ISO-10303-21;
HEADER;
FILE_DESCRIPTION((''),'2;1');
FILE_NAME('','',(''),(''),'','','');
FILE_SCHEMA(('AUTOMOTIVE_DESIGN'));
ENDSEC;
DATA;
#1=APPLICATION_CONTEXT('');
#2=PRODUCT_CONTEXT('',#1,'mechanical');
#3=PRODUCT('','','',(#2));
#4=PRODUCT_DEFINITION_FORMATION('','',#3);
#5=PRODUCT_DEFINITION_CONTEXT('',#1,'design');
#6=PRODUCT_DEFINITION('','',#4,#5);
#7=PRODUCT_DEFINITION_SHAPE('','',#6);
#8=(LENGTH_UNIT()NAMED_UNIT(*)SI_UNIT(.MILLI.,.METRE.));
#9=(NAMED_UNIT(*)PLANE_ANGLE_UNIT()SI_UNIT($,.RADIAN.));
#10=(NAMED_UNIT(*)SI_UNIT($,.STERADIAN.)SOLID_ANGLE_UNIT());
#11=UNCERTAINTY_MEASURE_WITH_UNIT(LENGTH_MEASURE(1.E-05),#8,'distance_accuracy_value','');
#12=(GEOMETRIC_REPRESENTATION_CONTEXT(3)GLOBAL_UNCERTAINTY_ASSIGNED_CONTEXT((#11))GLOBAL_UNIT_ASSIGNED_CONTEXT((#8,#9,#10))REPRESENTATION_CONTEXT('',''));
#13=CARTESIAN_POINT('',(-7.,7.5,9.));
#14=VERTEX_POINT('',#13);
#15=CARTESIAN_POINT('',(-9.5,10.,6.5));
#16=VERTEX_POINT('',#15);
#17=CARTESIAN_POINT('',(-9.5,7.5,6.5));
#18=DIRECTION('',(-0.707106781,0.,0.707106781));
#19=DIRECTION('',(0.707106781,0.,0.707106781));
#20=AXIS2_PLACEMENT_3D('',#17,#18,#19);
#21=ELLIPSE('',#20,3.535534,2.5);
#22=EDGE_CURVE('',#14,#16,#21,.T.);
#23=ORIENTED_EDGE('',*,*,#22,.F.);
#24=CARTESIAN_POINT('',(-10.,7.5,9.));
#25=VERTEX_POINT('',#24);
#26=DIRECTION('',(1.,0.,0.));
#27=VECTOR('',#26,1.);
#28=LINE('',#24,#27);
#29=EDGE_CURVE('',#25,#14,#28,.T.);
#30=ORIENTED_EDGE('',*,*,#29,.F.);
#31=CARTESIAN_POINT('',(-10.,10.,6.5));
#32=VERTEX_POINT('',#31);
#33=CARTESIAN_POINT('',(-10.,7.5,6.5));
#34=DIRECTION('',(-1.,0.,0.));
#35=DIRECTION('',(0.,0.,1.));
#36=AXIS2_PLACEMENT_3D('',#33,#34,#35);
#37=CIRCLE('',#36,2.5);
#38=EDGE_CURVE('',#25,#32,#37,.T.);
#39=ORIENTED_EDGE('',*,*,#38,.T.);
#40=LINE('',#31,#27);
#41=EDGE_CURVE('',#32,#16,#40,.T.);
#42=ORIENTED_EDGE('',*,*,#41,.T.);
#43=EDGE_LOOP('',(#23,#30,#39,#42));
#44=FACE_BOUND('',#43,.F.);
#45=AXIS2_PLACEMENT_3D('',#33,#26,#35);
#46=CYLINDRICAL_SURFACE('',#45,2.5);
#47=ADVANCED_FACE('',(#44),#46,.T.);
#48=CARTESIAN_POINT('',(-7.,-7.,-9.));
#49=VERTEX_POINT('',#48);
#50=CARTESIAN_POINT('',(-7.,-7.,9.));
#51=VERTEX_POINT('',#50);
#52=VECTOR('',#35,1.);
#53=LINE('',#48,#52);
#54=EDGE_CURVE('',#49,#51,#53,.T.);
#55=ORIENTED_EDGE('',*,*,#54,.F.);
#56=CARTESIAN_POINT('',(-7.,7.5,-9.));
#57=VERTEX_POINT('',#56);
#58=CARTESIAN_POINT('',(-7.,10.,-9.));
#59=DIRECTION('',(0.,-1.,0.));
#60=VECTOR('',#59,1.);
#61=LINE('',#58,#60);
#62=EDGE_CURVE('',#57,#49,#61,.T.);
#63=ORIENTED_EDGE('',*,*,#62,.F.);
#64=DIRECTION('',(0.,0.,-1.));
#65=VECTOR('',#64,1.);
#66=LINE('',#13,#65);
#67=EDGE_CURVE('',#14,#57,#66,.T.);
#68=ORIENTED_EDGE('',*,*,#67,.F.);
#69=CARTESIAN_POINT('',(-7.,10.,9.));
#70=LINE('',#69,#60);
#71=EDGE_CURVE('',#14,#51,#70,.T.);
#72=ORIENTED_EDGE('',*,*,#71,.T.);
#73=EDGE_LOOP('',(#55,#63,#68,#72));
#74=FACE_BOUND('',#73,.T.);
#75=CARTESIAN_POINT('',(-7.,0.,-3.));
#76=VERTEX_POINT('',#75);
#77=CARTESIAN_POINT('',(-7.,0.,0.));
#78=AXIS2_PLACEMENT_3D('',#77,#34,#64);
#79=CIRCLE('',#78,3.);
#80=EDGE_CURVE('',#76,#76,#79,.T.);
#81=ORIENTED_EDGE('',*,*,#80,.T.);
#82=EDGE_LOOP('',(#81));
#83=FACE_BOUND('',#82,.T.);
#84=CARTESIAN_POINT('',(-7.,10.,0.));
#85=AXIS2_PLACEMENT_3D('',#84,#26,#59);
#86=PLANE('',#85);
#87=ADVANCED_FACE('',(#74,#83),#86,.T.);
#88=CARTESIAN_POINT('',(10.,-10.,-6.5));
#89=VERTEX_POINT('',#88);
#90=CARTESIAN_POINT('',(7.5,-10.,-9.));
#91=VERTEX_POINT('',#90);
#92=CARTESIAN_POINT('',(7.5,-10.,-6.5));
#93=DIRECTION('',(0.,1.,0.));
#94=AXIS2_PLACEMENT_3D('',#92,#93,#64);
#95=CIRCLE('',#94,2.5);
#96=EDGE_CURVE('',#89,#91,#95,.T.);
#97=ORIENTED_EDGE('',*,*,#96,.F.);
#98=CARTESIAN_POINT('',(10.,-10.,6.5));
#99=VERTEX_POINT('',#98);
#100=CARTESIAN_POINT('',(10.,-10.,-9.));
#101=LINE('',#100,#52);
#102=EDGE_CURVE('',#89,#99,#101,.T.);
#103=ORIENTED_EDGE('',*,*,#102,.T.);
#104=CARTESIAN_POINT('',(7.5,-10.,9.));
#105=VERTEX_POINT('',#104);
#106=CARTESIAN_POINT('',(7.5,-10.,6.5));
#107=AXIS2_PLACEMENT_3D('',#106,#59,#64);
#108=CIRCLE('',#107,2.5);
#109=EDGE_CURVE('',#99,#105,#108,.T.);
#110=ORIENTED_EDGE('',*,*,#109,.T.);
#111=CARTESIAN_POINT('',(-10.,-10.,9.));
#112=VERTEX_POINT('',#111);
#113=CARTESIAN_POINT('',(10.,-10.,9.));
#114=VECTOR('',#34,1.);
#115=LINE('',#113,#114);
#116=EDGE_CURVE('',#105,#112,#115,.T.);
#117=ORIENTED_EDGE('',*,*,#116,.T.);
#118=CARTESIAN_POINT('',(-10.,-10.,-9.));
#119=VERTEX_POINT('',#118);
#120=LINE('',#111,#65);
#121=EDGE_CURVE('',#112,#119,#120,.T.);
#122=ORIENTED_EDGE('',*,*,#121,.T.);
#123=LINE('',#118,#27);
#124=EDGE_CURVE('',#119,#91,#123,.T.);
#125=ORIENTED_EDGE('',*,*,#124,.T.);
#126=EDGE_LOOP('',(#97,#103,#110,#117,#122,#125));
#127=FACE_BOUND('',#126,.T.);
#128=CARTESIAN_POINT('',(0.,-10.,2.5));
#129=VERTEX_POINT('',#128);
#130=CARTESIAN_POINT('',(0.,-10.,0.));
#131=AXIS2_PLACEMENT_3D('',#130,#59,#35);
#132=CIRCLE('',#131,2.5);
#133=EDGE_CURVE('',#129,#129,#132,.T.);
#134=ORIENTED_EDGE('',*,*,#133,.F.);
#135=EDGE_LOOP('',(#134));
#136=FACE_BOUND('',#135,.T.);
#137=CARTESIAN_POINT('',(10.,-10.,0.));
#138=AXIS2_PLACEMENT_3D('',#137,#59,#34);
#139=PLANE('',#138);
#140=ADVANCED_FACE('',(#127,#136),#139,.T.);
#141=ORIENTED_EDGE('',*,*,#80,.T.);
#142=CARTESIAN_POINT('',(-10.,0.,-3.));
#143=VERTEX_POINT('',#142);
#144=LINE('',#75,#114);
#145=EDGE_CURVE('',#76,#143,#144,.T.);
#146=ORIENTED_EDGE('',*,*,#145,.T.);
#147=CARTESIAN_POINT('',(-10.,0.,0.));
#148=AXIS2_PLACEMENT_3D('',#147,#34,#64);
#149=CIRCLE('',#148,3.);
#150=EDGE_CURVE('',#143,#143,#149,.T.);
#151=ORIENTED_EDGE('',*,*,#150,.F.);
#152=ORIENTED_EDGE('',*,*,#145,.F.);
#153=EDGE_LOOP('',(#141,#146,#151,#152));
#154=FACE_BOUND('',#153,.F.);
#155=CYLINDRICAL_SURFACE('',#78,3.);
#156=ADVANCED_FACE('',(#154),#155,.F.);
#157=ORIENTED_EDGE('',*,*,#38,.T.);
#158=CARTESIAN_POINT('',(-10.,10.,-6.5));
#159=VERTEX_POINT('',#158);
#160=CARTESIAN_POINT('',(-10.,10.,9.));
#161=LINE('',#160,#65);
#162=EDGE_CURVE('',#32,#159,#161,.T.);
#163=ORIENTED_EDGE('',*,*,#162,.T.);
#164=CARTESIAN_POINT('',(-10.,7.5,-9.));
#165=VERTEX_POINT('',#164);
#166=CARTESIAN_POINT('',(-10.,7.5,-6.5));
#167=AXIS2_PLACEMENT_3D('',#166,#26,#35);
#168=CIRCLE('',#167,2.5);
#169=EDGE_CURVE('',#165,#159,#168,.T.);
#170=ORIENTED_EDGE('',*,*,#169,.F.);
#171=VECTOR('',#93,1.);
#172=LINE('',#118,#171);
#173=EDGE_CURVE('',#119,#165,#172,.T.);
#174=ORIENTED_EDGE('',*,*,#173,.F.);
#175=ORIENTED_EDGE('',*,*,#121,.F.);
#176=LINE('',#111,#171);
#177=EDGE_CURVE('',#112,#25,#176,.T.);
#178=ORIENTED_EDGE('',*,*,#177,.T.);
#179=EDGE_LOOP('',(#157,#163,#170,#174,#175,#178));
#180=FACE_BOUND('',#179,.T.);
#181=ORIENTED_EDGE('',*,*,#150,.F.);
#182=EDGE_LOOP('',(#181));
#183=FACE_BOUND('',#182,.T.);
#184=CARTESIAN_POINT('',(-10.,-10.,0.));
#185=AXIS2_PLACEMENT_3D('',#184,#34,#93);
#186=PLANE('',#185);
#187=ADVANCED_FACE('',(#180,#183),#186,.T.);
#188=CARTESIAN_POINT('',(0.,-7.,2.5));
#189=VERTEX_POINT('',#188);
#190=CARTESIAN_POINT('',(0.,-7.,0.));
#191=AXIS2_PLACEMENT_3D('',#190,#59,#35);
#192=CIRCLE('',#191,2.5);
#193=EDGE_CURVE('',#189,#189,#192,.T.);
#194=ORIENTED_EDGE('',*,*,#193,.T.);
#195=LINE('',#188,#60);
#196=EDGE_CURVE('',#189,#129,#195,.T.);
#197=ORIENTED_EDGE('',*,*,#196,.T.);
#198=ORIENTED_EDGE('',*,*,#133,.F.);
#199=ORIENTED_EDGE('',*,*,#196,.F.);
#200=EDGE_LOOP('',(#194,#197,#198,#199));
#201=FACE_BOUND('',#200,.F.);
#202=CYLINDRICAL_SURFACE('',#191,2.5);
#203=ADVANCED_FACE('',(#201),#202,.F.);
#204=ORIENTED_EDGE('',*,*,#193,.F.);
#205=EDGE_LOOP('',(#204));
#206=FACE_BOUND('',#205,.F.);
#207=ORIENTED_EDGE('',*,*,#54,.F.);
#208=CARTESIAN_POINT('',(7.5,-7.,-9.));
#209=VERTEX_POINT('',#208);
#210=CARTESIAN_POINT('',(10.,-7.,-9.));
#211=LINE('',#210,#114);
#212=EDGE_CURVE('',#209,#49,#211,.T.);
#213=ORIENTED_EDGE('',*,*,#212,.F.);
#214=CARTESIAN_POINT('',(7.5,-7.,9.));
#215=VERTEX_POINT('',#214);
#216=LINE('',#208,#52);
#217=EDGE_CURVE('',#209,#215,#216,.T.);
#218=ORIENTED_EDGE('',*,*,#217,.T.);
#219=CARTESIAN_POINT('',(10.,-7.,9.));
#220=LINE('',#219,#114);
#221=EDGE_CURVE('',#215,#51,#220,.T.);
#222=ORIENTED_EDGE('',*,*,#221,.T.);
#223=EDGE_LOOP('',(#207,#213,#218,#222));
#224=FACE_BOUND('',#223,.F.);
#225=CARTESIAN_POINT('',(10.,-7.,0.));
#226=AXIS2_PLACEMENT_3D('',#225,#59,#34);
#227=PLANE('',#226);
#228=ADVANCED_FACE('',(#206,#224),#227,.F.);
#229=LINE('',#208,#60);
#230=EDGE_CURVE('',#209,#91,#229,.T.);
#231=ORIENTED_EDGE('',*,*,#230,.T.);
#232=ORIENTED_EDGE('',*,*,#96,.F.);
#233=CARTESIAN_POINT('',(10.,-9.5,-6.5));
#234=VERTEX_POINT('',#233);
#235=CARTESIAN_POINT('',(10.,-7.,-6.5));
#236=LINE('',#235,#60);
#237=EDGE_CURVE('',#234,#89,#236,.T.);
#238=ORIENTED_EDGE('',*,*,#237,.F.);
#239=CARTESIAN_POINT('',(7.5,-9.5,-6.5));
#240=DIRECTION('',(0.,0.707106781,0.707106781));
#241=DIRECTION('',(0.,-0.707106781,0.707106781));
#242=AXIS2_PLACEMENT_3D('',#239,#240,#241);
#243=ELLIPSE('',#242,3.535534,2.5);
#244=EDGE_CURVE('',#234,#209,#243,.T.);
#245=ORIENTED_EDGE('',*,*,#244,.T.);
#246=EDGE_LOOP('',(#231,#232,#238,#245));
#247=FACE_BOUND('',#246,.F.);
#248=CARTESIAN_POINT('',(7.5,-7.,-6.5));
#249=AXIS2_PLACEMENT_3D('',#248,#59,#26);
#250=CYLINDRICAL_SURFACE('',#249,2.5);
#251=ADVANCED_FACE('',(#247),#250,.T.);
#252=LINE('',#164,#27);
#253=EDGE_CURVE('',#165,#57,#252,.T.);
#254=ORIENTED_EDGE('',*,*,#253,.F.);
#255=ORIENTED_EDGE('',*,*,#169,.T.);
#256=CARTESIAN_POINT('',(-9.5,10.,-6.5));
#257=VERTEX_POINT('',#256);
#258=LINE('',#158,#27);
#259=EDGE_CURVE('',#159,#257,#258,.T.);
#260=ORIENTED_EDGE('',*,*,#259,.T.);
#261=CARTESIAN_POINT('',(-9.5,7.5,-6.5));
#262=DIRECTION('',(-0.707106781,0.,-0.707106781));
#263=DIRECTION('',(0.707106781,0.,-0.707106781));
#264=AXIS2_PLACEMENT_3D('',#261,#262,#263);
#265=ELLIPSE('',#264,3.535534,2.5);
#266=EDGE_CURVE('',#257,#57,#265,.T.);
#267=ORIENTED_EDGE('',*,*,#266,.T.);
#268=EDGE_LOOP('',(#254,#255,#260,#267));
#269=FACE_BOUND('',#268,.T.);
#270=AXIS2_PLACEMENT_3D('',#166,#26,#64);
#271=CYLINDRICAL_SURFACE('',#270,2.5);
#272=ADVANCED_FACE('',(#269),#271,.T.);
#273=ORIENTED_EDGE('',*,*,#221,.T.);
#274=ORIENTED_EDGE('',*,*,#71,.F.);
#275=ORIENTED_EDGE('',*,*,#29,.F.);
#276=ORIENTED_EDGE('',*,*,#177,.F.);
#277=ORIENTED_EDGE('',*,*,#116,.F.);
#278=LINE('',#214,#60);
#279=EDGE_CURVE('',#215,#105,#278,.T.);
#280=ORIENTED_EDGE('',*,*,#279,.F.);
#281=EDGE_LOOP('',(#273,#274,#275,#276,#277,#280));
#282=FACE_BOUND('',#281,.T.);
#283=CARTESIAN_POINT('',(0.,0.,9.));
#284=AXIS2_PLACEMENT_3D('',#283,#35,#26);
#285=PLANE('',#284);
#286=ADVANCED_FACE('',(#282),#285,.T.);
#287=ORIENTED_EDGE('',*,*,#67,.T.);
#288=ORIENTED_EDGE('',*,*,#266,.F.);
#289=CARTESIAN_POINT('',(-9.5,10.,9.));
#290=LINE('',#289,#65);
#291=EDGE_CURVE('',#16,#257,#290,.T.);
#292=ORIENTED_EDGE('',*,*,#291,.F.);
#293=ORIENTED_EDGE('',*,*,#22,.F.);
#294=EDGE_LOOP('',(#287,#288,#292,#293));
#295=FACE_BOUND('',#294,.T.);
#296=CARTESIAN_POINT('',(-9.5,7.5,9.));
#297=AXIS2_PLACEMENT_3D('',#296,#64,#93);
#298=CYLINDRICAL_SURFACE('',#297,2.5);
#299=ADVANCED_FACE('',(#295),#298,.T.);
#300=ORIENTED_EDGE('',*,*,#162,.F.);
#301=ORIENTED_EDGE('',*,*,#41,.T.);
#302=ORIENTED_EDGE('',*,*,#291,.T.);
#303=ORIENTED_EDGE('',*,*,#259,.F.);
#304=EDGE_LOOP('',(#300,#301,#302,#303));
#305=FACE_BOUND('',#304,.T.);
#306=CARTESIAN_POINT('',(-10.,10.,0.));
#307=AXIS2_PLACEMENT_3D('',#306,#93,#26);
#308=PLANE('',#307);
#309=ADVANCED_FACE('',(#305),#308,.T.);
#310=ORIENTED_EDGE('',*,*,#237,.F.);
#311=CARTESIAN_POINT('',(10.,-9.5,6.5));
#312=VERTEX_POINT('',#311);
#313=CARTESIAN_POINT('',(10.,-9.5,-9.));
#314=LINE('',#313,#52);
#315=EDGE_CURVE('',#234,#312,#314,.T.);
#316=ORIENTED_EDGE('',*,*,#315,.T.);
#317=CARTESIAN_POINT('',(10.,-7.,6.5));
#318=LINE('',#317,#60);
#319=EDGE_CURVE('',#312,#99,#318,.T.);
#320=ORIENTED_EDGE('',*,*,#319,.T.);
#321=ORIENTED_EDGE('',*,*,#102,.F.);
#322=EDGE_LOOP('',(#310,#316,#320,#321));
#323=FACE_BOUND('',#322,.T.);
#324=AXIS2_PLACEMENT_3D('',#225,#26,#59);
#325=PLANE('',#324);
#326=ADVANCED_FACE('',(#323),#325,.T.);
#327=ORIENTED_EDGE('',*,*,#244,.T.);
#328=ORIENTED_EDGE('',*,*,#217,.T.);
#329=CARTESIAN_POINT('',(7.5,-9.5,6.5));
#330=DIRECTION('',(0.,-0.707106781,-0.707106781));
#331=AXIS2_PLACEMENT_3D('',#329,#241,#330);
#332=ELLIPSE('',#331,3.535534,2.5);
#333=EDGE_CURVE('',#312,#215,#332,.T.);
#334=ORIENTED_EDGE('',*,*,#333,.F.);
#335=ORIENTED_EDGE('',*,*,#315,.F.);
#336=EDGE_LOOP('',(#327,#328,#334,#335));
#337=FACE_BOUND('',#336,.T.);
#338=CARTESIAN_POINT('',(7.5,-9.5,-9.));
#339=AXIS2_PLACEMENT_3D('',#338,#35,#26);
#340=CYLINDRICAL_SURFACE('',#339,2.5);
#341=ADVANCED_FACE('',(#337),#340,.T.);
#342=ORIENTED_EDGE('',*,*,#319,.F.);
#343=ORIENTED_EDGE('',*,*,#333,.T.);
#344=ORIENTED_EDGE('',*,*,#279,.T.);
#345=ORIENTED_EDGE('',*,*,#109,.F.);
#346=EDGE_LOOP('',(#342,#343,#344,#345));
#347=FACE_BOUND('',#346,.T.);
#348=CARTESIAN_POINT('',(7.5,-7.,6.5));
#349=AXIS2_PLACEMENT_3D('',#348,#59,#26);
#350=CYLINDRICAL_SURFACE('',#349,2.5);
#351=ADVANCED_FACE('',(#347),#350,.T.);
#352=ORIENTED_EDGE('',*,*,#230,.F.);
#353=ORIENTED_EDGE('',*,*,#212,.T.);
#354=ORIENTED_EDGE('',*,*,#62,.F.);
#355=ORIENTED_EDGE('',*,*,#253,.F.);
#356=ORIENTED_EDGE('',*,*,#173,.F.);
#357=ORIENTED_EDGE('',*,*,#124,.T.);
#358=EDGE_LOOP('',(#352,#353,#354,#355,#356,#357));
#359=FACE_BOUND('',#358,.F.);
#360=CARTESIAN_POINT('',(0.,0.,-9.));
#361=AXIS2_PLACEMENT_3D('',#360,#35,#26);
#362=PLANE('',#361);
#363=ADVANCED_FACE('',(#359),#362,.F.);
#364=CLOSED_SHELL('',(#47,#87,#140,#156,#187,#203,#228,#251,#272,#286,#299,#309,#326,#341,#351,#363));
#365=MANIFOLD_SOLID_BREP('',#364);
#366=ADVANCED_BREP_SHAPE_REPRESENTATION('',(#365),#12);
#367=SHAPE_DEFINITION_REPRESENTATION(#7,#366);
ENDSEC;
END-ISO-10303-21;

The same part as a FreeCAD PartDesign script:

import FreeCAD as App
import Part
import Sketcher
from FreeCAD import Vector
Q = App.Units.Quantity


def edges_at(feature, points):
    """Names of the edges that pass closest to the given points."""
    edges = feature.Shape.Edges
    near = lambda p: min(range(len(edges)), key=lambda i: edges[i].distToShape(Part.Vertex(*p))[0])
    return sorted({f"Edge{near(p) + 1}" for p in points})


def add_polygon(sketch, points):
    """Adds a closed chain of lines whose ends are joined by coincident constraints."""
    first, n = sketch.GeometryCount, len(points)
    for a, b in zip(points, points[1:] + points[:1]):
        sketch.addGeometry(Part.LineSegment(App.Vector(*a, 0), App.Vector(*b, 0)), False)
    for i in range(n):
        sketch.addConstraint(Sketcher.Constraint("Coincident", first + i, 2, first + (i + 1) % n, 1))

doc = App.newDocument("Part")
params = doc.addObject("Spreadsheet::Sheet", "Params")
for row, (alias, value) in enumerate([
    ("sketch1_width", "20 mm"),
    ("sketch1_width2", "17 mm"),
    ("pad1_length", "18 mm"),
    ("fillet_radius", "2.5 mm"),
    ("sketch2_diameter", "6 mm"),
    ("hole_diameter", "6 mm"),
    ("sketch3_diameter", "5 mm"),
    ("hole2_diameter", "5 mm"),
], start=1):
    params.set(f"A{row}", alias)
    params.set(f"B{row}", "=" + value)
    params.setAlias(f"B{row}", alias)

body = doc.addObject("PartDesign::Body", "Body")

sketch1 = doc.addObject("Sketcher::SketchObject", "Sketch")
body.addObject(sketch1)
sketch1.AttachmentSupport = (doc.XY_Plane, [""])
sketch1.MapMode = "FlatFace"
add_polygon(sketch1, [(-10, -10), (10, -10), (10, -7), (-7, -7), (-7, 10), (-10, 10)])
sketch1.addConstraint(Sketcher.Constraint("Horizontal", 0))
sketch1.addConstraint(Sketcher.Constraint("Vertical", 1))
sketch1.addConstraint(Sketcher.Constraint("Horizontal", 2))
sketch1.addConstraint(Sketcher.Constraint("Vertical", 3))
sketch1.addConstraint(Sketcher.Constraint("Horizontal", 4))
sketch1.addConstraint(Sketcher.Constraint("Vertical", 5))
sketch1.addConstraint(Sketcher.Constraint("Symmetric", 0, 2, 4, 2, -1, 1))
sketch1.addConstraint(Sketcher.Constraint("Equal", 4, 1))
sketch1.addConstraint(Sketcher.Constraint("Equal", 2, 3))
sketch1.addConstraint(Sketcher.Constraint("DistanceX", 0, 1, 0, 2, Q("20 mm")))
sketch1.addConstraint(Sketcher.Constraint("DistanceX", 2, 2, 2, 1, Q("17 mm")))
sketch1.setExpression("Constraints[15]", "Params.sketch1_width")
sketch1.setExpression("Constraints[16]", "Params.sketch1_width2")
pad1 = doc.addObject("PartDesign::Pad", "Pad")
body.addObject(pad1)
pad1.Profile = sketch1
pad1.setExpression("Length", "Params.pad1_length")
pad1.Midplane = True
doc.recompute()

fillet = doc.addObject("PartDesign::Fillet", "Fillet")
body.addObject(fillet)
fillet.Base = (pad1, edges_at(pad1, [
    (-8.5, 10, 9),
    (-7, 10, 0),
    (-8.5, 10, -9),
    (10, -8.5, 9),
    (10, -7, 0),
    (10, -8.5, -9),
]))
fillet.setExpression("Radius", "Params.fillet_radius")

sketch2 = doc.addObject("Sketcher::SketchObject", "Sketch001")
body.addObject(sketch2)
sketch2.AttachmentSupport = (doc.YZ_Plane, [""])
sketch2.MapMode = "FlatFace"
sketch2.AttachmentOffset = App.Placement(Vector(0, 0, -7), App.Rotation())
sketch2.addGeometry(Part.Circle(Vector(0, 0, 0), Vector(0, 0, 1), 3), False)
sketch2.addConstraint(Sketcher.Constraint("Coincident", 0, 3, -1, 1))
sketch2.addConstraint(Sketcher.Constraint("Diameter", 0, Q("6 mm")))
sketch2.setExpression("Constraints[1]", "Params.sketch2_diameter")
doc.recompute()
hole = doc.addObject("PartDesign::Hole", "Hole")
body.addObject(hole)
hole.Profile = sketch2
hole.ThreadType = "None"
hole.setExpression("Diameter", "Params.hole_diameter")
hole.DepthType = "ThroughAll"

sketch3 = doc.addObject("Sketcher::SketchObject", "Sketch002")
body.addObject(sketch3)
sketch3.AttachmentSupport = (doc.XZ_Plane, [""])
sketch3.MapMode = "FlatFace"
sketch3.AttachmentOffset = App.Placement(Vector(0, 0, 7), App.Rotation())
sketch3.addGeometry(Part.Circle(Vector(0, 0, 0), Vector(0, 0, 1), 2.5), False)
sketch3.addConstraint(Sketcher.Constraint("Coincident", 0, 3, -1, 1))
sketch3.addConstraint(Sketcher.Constraint("Diameter", 0, Q("5 mm")))
sketch3.setExpression("Constraints[1]", "Params.sketch3_diameter")
doc.recompute()
hole2 = doc.addObject("PartDesign::Hole", "Hole001")
body.addObject(hole2)
hole2.Profile = sketch3
hole2.ThreadType = "None"
hole2.setExpression("Diameter", "Params.hole2_diameter")
hole2.DepthType = "ThroughAll"
hole2.Reversed = True

doc.recompute()
